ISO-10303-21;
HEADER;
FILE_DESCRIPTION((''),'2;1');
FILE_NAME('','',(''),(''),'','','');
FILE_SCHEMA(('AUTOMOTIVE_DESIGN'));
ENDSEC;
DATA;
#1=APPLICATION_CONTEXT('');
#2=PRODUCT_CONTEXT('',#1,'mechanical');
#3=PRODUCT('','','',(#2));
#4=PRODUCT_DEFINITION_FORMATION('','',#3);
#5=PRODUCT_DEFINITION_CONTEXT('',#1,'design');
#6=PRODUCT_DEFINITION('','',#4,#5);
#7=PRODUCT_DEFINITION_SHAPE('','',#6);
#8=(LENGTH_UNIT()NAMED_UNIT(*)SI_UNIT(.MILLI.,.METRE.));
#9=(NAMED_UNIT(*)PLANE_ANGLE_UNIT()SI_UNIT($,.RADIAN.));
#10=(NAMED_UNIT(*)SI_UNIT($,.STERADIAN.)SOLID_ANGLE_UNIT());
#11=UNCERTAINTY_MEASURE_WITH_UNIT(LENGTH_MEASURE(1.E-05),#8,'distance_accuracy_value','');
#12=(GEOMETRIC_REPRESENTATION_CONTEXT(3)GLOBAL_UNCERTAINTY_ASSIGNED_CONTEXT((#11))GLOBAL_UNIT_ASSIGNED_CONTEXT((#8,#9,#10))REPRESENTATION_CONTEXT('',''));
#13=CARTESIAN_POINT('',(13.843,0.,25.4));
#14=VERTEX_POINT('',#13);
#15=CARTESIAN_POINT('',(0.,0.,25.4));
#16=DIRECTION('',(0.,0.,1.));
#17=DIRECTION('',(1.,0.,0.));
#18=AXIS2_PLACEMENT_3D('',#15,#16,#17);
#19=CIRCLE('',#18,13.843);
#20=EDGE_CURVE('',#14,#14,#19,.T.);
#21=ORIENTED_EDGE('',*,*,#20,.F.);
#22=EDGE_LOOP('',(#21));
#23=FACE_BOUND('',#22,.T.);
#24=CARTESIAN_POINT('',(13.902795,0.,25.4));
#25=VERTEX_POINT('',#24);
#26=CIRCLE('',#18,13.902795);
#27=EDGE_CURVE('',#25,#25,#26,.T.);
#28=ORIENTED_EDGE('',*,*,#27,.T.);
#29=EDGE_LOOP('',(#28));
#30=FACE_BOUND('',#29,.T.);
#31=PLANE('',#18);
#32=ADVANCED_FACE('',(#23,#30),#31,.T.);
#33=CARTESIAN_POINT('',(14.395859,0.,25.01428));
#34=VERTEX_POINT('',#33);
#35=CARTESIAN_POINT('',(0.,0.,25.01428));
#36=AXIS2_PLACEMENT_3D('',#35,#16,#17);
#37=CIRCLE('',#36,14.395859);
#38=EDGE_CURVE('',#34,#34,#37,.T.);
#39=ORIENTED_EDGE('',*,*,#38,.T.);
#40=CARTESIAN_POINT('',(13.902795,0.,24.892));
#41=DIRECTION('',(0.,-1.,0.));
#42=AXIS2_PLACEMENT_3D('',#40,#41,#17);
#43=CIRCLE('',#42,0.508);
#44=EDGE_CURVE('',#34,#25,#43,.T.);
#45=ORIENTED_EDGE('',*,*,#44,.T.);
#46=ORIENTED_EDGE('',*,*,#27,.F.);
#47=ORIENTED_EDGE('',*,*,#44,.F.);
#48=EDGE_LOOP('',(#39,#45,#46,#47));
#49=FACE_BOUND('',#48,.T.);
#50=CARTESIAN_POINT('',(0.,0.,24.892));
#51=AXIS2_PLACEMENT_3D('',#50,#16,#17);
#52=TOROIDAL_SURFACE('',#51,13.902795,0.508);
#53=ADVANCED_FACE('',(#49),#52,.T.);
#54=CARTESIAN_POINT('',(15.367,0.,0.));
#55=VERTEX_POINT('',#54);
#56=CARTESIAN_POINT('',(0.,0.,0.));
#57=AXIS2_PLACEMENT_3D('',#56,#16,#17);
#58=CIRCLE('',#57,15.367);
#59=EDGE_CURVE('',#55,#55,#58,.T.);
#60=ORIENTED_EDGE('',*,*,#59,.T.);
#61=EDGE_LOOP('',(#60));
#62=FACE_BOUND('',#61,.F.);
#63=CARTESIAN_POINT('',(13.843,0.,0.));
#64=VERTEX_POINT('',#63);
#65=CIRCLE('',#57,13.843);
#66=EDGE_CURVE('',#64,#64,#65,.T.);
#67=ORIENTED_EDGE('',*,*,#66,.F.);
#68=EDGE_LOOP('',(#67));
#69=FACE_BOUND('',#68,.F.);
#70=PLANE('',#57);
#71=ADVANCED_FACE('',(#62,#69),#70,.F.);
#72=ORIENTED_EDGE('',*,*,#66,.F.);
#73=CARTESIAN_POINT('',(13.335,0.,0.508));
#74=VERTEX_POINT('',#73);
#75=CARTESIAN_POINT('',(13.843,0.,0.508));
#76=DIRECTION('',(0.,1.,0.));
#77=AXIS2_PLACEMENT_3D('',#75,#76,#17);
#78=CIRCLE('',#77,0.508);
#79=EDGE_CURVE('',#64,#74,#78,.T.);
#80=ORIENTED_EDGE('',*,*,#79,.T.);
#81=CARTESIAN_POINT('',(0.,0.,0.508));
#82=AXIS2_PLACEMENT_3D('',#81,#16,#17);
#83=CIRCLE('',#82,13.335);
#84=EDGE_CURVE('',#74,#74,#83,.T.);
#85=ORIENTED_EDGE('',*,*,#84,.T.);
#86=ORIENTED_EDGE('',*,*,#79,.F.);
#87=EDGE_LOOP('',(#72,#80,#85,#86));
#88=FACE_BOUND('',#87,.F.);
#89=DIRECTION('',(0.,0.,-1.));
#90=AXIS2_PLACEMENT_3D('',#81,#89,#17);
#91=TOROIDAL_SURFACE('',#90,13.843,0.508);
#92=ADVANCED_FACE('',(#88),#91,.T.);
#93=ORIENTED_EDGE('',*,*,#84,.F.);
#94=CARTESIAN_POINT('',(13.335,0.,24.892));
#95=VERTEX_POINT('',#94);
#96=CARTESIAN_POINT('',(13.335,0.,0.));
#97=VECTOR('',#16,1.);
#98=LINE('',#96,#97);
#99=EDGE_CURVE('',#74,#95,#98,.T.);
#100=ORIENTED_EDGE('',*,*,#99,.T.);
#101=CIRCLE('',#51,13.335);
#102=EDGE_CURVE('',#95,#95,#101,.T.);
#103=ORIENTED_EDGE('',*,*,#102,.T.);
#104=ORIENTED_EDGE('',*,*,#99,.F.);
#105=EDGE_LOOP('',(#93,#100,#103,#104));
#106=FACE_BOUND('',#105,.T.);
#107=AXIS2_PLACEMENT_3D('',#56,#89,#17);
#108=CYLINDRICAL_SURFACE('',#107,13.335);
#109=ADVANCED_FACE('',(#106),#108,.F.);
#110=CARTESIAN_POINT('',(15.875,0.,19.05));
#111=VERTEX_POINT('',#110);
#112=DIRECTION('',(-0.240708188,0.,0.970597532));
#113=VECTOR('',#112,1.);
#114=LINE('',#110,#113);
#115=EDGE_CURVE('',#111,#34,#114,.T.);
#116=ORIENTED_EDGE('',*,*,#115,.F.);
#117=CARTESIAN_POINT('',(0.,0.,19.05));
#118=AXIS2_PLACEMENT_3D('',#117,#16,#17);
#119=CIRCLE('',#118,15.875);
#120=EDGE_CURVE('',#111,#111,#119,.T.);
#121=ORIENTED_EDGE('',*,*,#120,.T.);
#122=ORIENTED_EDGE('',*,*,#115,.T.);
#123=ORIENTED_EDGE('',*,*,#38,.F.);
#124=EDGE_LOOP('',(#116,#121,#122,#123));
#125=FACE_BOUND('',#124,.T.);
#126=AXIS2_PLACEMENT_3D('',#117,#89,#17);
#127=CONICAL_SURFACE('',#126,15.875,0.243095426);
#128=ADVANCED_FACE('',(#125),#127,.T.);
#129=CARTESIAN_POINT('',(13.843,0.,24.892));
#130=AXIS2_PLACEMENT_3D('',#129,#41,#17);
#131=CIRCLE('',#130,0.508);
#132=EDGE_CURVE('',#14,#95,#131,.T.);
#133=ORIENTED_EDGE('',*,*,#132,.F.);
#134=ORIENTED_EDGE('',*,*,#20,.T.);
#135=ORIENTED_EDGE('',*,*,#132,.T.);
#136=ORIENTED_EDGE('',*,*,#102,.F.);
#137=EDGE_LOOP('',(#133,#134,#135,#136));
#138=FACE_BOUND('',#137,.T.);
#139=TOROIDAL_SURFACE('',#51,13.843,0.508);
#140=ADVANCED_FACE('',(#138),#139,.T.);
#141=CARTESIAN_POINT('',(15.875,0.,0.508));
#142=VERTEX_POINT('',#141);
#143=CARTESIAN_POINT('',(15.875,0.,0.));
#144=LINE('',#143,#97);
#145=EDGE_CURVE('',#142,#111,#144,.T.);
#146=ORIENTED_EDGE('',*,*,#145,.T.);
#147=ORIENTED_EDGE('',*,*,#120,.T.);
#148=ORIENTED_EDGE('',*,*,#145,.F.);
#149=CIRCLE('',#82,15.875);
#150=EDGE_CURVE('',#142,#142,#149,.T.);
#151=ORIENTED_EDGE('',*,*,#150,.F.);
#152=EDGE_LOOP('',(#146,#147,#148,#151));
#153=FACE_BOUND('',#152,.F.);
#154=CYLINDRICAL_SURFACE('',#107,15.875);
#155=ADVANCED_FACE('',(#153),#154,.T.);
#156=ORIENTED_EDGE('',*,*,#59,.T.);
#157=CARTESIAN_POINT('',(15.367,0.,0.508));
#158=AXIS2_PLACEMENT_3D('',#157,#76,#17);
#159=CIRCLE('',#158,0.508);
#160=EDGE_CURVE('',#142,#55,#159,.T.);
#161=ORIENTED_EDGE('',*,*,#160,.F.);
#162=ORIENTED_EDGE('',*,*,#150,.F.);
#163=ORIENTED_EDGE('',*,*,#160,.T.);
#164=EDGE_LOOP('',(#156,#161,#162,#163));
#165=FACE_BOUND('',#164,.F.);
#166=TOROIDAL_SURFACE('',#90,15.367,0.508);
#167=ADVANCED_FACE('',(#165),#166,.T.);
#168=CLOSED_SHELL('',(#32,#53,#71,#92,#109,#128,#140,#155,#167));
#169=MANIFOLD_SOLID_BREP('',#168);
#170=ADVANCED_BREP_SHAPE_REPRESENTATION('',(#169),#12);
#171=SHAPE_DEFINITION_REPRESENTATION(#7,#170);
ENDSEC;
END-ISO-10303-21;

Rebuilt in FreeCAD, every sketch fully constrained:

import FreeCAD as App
import Part
import Sketcher

V = App.Vector
Q = App.Units.Quantity


def edges_at(feature, points):
    """Names of the edges that pass closest to the given points."""
    edges = feature.Shape.Edges
    near = lambda p: min(range(len(edges)), key=lambda i: edges[i].distToShape(Part.Vertex(*p))[0])
    return sorted({f"Edge{near(p) + 1}" for p in points})

doc = App.newDocument("Part")
params = doc.addObject("Spreadsheet::Sheet", "Params")
for row, (alias, value) in enumerate([
    ("sketch1_diameter", "1.25 in"),
    ("sketch1_diameter2", "1.05 in"),
    ("pad1_length", "1 in"),
    ("chamfer_size", "0.25 in"),
    ("chamfer_size2", "0.062 in"),
    ("fillet_radius", "0.02 in"),
], start=1):
    params.set(f"A{row}", alias)
    params.set(f"B{row}", "=" + value)
    params.setAlias(f"B{row}", alias)

body = doc.addObject("PartDesign::Body", "Body")

sketch1 = doc.addObject("Sketcher::SketchObject", "Sketch")
body.addObject(sketch1)
sketch1.AttachmentSupport = (doc.XY_Plane, [""])
sketch1.MapMode = "FlatFace"
sketch1.addGeometry([
    Part.Circle(V(0, 0, 0), V(0, 0, 1), 16),
    Part.Circle(V(0, 0, 0), V(0, 0, 1), 13),
], False)
sketch1.addConstraint([
    Sketcher.Constraint("Coincident", 0, 3, -1, 1),
    Sketcher.Constraint("Coincident", 1, 3, -1, 1),
    Sketcher.Constraint("Diameter", 0, Q("1.25 in")),
    Sketcher.Constraint("Diameter", 1, Q("1.05 in")),
])
sketch1.setExpression("Constraints[2]", "Params.sketch1_diameter")
sketch1.setExpression("Constraints[3]", "Params.sketch1_diameter2")
pad1 = doc.addObject("PartDesign::Pad", "Pad")
body.addObject(pad1)
pad1.Profile = sketch1
pad1.setExpression("Length", "Params.pad1_length")
doc.recompute()

chamfer = doc.addObject("PartDesign::Chamfer", "Chamfer")
body.addObject(chamfer)
chamfer.Base = (pad1, edges_at(pad1, [(-15.875, 0, 25.4)]))
chamfer.ChamferType = "Two distances"
chamfer.setExpression("Size", "Params.chamfer_size")
chamfer.setExpression("Size2", "Params.chamfer_size2")
doc.recompute()

fillet = doc.addObject("PartDesign::Fillet", "Fillet")
body.addObject(fillet)
fillet.Base = (chamfer, edges_at(chamfer, [
    (-14.3, 0, 25.4),
    (-13.335, 0, 25.4),
    (-15.875, 0, 0),
    (-13.335, 0, 0),
]))
fillet.setExpression("Radius", "Params.fillet_radius")

doc.recompute()
